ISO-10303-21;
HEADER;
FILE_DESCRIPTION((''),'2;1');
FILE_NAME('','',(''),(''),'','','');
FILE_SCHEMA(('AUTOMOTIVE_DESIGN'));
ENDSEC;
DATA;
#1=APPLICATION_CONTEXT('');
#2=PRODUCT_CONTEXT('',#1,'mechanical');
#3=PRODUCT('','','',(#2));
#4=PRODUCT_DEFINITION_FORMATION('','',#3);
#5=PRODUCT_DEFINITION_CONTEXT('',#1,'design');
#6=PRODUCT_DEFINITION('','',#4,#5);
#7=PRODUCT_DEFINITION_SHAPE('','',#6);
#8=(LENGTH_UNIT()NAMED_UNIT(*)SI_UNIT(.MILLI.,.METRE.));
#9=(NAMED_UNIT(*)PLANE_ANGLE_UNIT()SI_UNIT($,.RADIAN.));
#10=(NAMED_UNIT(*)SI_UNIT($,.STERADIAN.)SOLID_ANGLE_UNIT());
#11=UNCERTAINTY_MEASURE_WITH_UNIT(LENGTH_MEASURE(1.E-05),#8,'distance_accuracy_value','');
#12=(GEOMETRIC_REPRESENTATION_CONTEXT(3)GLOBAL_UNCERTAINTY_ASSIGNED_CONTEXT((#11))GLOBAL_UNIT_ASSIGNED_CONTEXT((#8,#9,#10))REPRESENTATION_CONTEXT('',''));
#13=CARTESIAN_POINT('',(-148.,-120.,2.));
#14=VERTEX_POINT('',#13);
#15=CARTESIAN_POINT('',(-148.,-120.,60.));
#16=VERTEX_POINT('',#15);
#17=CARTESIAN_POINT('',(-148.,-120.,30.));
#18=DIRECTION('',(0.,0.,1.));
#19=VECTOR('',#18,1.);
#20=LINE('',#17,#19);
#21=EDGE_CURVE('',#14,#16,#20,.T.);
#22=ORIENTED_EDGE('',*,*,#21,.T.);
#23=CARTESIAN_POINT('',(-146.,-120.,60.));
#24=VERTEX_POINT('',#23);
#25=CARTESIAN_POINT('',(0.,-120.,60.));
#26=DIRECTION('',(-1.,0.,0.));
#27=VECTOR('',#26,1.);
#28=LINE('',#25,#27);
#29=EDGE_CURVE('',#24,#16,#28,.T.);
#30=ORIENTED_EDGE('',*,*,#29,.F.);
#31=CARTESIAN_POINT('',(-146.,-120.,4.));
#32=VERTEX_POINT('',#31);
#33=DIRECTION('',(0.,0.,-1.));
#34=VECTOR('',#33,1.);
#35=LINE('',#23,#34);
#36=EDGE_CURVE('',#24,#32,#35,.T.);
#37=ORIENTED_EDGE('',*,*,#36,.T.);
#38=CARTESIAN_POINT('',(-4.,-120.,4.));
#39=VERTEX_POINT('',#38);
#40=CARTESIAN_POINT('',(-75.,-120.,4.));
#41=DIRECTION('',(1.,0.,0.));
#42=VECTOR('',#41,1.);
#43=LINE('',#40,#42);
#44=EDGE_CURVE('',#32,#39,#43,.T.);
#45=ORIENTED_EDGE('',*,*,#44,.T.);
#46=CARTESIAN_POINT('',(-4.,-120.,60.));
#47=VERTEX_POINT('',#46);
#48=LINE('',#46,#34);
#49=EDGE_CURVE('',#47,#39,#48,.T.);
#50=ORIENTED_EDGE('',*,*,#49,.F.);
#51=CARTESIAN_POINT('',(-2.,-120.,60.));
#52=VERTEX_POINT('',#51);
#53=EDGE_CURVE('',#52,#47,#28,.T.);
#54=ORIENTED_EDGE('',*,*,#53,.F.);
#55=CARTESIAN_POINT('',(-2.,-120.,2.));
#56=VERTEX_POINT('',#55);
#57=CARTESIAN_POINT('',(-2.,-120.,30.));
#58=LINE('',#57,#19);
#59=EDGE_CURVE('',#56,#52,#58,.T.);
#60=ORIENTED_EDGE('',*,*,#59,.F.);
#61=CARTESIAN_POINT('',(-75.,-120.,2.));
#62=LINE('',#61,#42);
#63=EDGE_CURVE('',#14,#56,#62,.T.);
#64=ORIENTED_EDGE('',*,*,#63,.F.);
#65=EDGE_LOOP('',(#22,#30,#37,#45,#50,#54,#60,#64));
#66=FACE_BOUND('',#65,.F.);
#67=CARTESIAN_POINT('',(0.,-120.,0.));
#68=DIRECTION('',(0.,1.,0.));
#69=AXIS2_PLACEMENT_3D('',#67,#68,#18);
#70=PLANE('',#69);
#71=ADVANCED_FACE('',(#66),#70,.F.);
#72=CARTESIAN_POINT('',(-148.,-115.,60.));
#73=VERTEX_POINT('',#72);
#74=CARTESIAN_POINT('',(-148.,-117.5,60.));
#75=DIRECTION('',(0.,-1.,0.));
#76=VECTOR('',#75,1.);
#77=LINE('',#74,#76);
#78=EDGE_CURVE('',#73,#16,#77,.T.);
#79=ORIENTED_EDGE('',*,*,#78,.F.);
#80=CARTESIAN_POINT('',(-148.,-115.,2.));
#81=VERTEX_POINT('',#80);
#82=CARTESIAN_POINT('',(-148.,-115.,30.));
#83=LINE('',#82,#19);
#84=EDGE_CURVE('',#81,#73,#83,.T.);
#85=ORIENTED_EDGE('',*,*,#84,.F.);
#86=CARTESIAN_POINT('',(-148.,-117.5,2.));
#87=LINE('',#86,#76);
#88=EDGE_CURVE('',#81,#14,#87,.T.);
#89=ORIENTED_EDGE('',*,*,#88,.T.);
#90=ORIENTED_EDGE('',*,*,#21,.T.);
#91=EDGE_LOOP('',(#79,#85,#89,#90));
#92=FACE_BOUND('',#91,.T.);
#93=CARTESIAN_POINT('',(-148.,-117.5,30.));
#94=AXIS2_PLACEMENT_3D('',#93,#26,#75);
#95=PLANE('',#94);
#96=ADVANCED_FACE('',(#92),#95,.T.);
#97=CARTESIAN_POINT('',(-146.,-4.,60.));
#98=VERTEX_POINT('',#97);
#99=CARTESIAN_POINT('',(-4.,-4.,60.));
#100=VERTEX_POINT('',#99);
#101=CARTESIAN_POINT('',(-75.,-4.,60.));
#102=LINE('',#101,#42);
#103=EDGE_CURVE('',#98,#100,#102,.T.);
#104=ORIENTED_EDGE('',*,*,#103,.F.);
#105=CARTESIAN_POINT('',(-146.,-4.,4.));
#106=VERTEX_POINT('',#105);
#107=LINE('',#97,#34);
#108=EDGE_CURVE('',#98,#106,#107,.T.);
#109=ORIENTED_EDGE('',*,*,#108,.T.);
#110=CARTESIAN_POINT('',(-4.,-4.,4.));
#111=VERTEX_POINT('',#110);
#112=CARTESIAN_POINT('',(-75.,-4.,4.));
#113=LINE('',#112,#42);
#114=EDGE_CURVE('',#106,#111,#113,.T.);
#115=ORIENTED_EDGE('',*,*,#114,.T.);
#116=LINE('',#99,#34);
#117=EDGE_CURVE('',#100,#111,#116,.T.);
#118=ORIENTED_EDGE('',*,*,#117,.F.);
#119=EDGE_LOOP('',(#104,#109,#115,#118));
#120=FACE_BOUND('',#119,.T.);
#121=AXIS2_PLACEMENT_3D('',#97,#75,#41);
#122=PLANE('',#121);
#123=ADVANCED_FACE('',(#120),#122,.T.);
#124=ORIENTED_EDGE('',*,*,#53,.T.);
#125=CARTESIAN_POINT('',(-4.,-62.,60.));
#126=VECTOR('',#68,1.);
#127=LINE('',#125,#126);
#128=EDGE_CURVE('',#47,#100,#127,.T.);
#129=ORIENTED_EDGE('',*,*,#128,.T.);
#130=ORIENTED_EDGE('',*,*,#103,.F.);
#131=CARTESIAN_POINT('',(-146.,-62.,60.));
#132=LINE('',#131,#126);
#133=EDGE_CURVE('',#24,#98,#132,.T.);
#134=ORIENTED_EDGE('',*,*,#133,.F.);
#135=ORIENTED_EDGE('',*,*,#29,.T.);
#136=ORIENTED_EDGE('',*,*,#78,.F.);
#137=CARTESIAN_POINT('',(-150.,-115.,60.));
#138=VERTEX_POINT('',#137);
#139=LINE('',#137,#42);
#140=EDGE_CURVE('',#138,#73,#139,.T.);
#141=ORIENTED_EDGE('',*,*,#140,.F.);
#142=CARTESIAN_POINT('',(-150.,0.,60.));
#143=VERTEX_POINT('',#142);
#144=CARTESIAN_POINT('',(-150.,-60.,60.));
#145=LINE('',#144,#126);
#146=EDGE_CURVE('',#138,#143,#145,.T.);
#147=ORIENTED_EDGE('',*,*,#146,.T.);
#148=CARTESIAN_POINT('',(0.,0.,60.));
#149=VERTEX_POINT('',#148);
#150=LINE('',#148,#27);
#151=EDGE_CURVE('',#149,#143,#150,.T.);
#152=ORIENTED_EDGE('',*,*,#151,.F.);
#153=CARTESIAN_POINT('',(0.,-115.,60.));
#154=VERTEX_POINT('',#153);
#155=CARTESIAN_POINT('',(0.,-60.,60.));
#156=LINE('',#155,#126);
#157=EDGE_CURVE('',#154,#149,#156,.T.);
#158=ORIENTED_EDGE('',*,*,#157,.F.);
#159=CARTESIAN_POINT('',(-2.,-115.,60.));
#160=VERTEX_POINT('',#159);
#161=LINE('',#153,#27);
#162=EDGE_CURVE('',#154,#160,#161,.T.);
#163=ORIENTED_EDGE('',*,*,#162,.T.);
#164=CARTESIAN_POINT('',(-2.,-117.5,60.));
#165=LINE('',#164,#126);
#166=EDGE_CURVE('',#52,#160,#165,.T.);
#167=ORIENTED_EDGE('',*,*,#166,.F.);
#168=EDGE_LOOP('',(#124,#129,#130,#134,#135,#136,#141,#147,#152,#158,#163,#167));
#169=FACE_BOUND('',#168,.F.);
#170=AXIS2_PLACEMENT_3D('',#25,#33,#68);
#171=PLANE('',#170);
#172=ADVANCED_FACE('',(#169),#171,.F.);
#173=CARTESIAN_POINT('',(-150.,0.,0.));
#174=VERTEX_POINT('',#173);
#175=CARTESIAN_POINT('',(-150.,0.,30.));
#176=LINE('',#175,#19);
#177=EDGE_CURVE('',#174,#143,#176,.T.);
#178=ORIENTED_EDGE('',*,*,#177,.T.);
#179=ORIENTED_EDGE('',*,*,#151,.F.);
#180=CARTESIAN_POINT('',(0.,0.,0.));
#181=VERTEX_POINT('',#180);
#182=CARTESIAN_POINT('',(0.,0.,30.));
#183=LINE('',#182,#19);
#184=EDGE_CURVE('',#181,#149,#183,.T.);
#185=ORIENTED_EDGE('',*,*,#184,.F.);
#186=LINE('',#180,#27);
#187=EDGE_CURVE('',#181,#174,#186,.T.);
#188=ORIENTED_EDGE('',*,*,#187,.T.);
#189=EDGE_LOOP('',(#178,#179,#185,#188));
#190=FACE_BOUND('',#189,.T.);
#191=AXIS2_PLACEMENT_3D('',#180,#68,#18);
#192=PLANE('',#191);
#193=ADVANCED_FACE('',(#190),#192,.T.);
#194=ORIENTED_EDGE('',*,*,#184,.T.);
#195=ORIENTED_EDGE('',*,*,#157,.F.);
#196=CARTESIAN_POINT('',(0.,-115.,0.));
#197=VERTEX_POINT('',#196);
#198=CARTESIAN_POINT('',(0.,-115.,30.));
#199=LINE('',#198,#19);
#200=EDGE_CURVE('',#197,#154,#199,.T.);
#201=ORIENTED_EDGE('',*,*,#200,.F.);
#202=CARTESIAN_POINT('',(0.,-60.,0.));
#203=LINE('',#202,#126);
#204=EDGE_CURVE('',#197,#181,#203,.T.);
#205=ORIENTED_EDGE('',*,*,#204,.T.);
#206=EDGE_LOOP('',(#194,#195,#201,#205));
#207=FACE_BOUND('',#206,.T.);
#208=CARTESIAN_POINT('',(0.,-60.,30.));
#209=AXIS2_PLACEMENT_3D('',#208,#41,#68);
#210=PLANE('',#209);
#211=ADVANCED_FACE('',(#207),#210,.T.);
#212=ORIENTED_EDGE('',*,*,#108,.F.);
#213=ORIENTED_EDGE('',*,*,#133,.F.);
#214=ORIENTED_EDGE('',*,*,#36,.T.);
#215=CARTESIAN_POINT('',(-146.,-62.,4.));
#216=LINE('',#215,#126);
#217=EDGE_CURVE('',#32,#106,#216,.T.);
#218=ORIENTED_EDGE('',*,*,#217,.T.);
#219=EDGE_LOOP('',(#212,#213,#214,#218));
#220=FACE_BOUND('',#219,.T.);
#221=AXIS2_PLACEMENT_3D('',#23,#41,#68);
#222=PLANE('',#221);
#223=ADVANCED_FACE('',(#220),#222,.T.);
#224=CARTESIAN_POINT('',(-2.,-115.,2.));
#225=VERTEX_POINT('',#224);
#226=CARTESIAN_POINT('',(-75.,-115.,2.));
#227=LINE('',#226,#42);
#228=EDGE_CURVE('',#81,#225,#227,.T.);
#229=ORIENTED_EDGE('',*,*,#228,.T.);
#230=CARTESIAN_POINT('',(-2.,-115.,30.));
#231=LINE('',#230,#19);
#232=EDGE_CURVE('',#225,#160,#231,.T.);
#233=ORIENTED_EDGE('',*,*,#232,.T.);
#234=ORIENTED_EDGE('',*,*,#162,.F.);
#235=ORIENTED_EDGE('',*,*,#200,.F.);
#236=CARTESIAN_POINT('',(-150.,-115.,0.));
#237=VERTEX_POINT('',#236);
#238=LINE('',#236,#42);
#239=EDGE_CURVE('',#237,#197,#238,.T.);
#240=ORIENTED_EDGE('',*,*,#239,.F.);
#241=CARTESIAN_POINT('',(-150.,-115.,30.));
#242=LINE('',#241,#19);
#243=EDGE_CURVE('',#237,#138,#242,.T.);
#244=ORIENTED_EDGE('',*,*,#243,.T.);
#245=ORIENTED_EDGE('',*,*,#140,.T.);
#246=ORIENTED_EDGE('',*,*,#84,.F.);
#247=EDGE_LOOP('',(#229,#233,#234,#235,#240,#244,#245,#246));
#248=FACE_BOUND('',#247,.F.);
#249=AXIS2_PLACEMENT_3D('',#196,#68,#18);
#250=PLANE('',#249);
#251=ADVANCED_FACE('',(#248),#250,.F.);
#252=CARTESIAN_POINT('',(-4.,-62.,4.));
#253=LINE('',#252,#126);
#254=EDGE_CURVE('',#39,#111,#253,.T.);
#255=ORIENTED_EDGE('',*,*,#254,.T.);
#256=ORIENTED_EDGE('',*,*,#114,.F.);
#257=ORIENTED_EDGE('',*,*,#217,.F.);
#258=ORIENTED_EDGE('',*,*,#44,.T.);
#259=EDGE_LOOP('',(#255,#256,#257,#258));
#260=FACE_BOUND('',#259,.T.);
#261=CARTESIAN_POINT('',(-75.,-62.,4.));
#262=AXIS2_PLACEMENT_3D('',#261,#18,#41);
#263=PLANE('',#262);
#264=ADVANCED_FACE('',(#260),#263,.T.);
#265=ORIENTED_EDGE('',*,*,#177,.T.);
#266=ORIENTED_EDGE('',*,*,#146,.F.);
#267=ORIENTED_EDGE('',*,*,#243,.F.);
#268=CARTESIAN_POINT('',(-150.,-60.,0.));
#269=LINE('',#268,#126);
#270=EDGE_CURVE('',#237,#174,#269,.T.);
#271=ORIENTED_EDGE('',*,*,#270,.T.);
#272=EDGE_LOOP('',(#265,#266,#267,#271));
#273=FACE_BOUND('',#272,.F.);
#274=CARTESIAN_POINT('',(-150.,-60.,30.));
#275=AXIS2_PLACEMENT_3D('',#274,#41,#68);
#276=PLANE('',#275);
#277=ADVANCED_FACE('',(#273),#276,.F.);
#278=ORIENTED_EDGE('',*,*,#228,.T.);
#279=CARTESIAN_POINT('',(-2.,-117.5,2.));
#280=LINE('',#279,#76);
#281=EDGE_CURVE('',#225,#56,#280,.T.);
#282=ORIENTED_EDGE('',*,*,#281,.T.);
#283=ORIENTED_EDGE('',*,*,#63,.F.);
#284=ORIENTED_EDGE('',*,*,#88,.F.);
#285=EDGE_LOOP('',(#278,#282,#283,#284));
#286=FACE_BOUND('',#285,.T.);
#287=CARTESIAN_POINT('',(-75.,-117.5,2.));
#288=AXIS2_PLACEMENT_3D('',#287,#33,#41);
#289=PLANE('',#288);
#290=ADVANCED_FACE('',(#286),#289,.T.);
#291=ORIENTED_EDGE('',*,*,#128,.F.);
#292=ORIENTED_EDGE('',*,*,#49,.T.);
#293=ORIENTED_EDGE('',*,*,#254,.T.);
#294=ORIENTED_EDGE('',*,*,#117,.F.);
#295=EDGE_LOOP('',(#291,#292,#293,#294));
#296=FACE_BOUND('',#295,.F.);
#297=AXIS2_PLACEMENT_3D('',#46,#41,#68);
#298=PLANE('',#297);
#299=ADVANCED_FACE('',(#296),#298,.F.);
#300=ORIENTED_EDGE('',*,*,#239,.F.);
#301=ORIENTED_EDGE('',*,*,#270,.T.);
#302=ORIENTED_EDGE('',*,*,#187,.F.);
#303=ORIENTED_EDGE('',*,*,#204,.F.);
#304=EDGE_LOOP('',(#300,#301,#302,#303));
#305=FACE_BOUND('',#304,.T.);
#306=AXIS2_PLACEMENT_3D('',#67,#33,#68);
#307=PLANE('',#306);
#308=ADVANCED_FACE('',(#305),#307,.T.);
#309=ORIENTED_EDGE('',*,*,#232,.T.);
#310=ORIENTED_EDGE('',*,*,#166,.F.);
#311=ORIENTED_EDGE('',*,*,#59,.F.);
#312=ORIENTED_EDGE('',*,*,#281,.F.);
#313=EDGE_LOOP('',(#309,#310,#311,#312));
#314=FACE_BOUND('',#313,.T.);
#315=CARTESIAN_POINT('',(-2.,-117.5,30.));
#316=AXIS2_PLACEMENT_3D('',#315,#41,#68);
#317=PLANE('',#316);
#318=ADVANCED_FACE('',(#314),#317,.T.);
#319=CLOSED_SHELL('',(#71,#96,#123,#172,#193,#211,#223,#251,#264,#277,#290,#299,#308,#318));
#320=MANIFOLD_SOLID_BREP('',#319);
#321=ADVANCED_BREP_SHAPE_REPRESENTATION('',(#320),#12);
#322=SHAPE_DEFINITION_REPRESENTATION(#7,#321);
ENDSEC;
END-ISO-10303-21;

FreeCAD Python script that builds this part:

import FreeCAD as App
import Part
import Sketcher

doc = App.newDocument("Part")
params = doc.addObject("Spreadsheet::Sheet", "Params")
for row, (alias, value) in enumerate([
    ("sketch1_width", "120 mm"),
    ("sketch1_height", "60 mm"),
    ("pad1_length", "150 mm"),
    ("sketch2_width", "142 mm"),
    ("sketch2_height", "116 mm"),
    ("pocket1_length", "56 mm"),
    ("sketch3_width", "5 mm"),
    ("sketch3_height", "60 mm"),
    ("pocket2_length", "2 mm"),
    ("sketch4_width", "5 mm"),
    ("sketch4_height", "60 mm"),
    ("pocket3_length", "2 mm"),
    ("sketch5_width", "146 mm"),
    ("sketch5_height", "5 mm"),
    ("pocket4_length", "2 mm"),
], start=1):
    params.set(f"A{row}", alias)
    params.set(f"B{row}", "=" + value)
    params.setAlias(f"B{row}", alias)

body = doc.addObject("PartDesign::Body", "Body")

sketch1 = doc.addObject("Sketcher::SketchObject", "Sketch")
body.addObject(sketch1)
sketch1.AttachmentSupport = (doc.YZ_Plane, [""])
sketch1.MapMode = "FlatFace"
sketch1.addGeometry(Part.LineSegment(App.Vector(-120, 60, 0), App.Vector(-120, 0, 0)), False)
sketch1.addGeometry(Part.LineSegment(App.Vector(-120, 0, 0), App.Vector(0, 0, 0)), False)
sketch1.addGeometry(Part.LineSegment(App.Vector(0, 0, 0), App.Vector(0, 60, 0)), False)
sketch1.addGeometry(Part.LineSegment(App.Vector(0, 60, 0), App.Vector(-120, 60, 0)), False)
sketch1.addConstraint(Sketcher.Constraint("Coincident", 0, 2, 1, 1))
sketch1.addConstraint(Sketcher.Constraint("Coincident", 1, 2, 2, 1))
sketch1.addConstraint(Sketcher.Constraint("Coincident", 2, 2, 3, 1))
sketch1.addConstraint(Sketcher.Constraint("Coincident", 3, 2, 0, 1))
sketch1.addConstraint(Sketcher.Constraint("Vertical", 0))
sketch1.addConstraint(Sketcher.Constraint("Horizontal", 1))
sketch1.addConstraint(Sketcher.Constraint("Vertical", 2))
sketch1.addConstraint(Sketcher.Constraint("Horizontal", 3))
sketch1.addConstraint(Sketcher.Constraint("Coincident", 1, 2, -1, 1))
sketch1.addConstraint(Sketcher.Constraint("DistanceX", 1, 1, 1, 2, 120.0))
sketch1.addConstraint(Sketcher.Constraint("DistanceY", 0, 2, 0, 1, 60.0))
sketch1.setExpression("Constraints[9]", "Params.sketch1_width")
sketch1.setExpression("Constraints[10]", "Params.sketch1_height")
pad1 = doc.addObject("PartDesign::Pad", "Pad")
body.addObject(pad1)
pad1.Profile = sketch1
pad1.setExpression("Length", "Params.pad1_length")
pad1.Reversed = True

sketch2 = doc.addObject("Sketcher::SketchObject", "Sketch001")
body.addObject(sketch2)
sketch2.AttachmentSupport = (doc.XY_Plane, [""])
sketch2.MapMode = "FlatFace"
sketch2.AttachmentOffset = App.Placement(App.Vector(0, 0, 60), App.Rotation())
sketch2.addGeometry(Part.LineSegment(App.Vector(-146, -4, 0), App.Vector(-146, -120, 0)), False)
sketch2.addGeometry(Part.LineSegment(App.Vector(-146, -120, 0), App.Vector(-4, -120, 0)), False)
sketch2.addGeometry(Part.LineSegment(App.Vector(-4, -120, 0), App.Vector(-4, -4, 0)), False)
sketch2.addGeometry(Part.LineSegment(App.Vector(-4, -4, 0), App.Vector(-146, -4, 0)), False)
sketch2.addConstraint(Sketcher.Constraint("Coincident", 0, 2, 1, 1))
sketch2.addConstraint(Sketcher.Constraint("Coincident", 1, 2, 2, 1))
sketch2.addConstraint(Sketcher.Constraint("Coincident", 2, 2, 3, 1))
sketch2.addConstraint(Sketcher.Constraint("Coincident", 3, 2, 0, 1))
sketch2.addConstraint(Sketcher.Constraint("Vertical", 0))
sketch2.addConstraint(Sketcher.Constraint("Horizontal", 1))
sketch2.addConstraint(Sketcher.Constraint("Vertical", 2))
sketch2.addConstraint(Sketcher.Constraint("Horizontal", 3))
sketch2.addConstraint(Sketcher.Constraint("DistanceX", 1, 1, 1, 2, 142.0))
sketch2.addConstraint(Sketcher.Constraint("DistanceY", 0, 2, 0, 1, 116.0))
sketch2.addConstraint(Sketcher.Constraint("DistanceX", 0, 2, -1, 1, 146.0))
sketch2.addConstraint(Sketcher.Constraint("DistanceY", 0, 2, -1, 1, 120.0))
sketch2.setExpression("Constraints[8]", "Params.sketch2_width")
sketch2.setExpression("Constraints[9]", "Params.sketch2_height")
pocket1 = doc.addObject("PartDesign::Pocket", "Pocket")
body.addObject(pocket1)
pocket1.Profile = sketch2
pocket1.setExpression("Length", "Params.pocket1_length")

sketch3 = doc.addObject("Sketcher::SketchObject", "Sketch002")
body.addObject(sketch3)
sketch3.AttachmentSupport = (doc.YZ_Plane, [""])
sketch3.MapMode = "FlatFace"
sketch3.AttachmentOffset = App.Placement(App.Vector(0, 0, -150), App.Rotation())
sketch3.addGeometry(Part.LineSegment(App.Vector(-115, 60, 0), App.Vector(-115, 0, 0)), False)
sketch3.addGeometry(Part.LineSegment(App.Vector(-115, 0, 0), App.Vector(-120, 0, 0)), False)
sketch3.addGeometry(Part.LineSegment(App.Vector(-120, 0, 0), App.Vector(-120, 60, 0)), False)
sketch3.addGeometry(Part.LineSegment(App.Vector(-120, 60, 0), App.Vector(-115, 60, 0)), False)
sketch3.addConstraint(Sketcher.Constraint("Coincident", 0, 2, 1, 1))
sketch3.addConstraint(Sketcher.Constraint("Coincident", 1, 2, 2, 1))
sketch3.addConstraint(Sketcher.Constraint("Coincident", 2, 2, 3, 1))
sketch3.addConstraint(Sketcher.Constraint("Coincident", 3, 2, 0, 1))
sketch3.addConstraint(Sketcher.Constraint("Vertical", 0))
sketch3.addConstraint(Sketcher.Constraint("Horizontal", 1))
sketch3.addConstraint(Sketcher.Constraint("Vertical", 2))
sketch3.addConstraint(Sketcher.Constraint("Horizontal", 3))
sketch3.addConstraint(Sketcher.Constraint("PointOnObject", 0, 2, -1))
sketch3.addConstraint(Sketcher.Constraint("DistanceX", 1, 2, 1, 1, 5.0))
sketch3.addConstraint(Sketcher.Constraint("DistanceY", 0, 2, 0, 1, 60.0))
sketch3.addConstraint(Sketcher.Constraint("DistanceX", 0, 2, -1, 1, 115.0))
sketch3.setExpression("Constraints[9]", "Params.sketch3_width")
sketch3.setExpression("Constraints[10]", "Params.sketch3_height")
pocket2 = doc.addObject("PartDesign::Pocket", "Pocket001")
body.addObject(pocket2)
pocket2.Profile = sketch3
pocket2.setExpression("Length", "Params.pocket2_length")
pocket2.Reversed = True

sketch4 = doc.addObject("Sketcher::SketchObject", "Sketch003")
body.addObject(sketch4)
sketch4.AttachmentSupport = (doc.YZ_Plane, [""])
sketch4.MapMode = "FlatFace"
sketch4.addGeometry(Part.LineSegment(App.Vector(-120, 60, 0), App.Vector(-120, 0, 0)), False)
sketch4.addGeometry(Part.LineSegment(App.Vector(-120, 0, 0), App.Vector(-115, 0, 0)), False)
sketch4.addGeometry(Part.LineSegment(App.Vector(-115, 0, 0), App.Vector(-115, 60, 0)), False)
sketch4.addGeometry(Part.LineSegment(App.Vector(-115, 60, 0), App.Vector(-120, 60, 0)), False)
sketch4.addConstraint(Sketcher.Constraint("Coincident", 0, 2, 1, 1))
sketch4.addConstraint(Sketcher.Constraint("Coincident", 1, 2, 2, 1))
sketch4.addConstraint(Sketcher.Constraint("Coincident", 2, 2, 3, 1))
sketch4.addConstraint(Sketcher.Constraint("Coincident", 3, 2, 0, 1))
sketch4.addConstraint(Sketcher.Constraint("Vertical", 0))
sketch4.addConstraint(Sketcher.Constraint("Horizontal", 1))
sketch4.addConstraint(Sketcher.Constraint("Vertical", 2))
sketch4.addConstraint(Sketcher.Constraint("Horizontal", 3))
sketch4.addConstraint(Sketcher.Constraint("PointOnObject", 0, 2, -1))
sketch4.addConstraint(Sketcher.Constraint("DistanceX", 1, 1, 1, 2, 5.0))
sketch4.addConstraint(Sketcher.Constraint("DistanceY", 0, 2, 0, 1, 60.0))
sketch4.addConstraint(Sketcher.Constraint("DistanceX", 0, 2, -1, 1, 120.0))
sketch4.setExpression("Constraints[9]", "Params.sketch4_width")
sketch4.setExpression("Constraints[10]", "Params.sketch4_height")
pocket3 = doc.addObject("PartDesign::Pocket", "Pocket002")
body.addObject(pocket3)
pocket3.Profile = sketch4
pocket3.setExpression("Length", "Params.pocket3_length")

sketch5 = doc.addObject("Sketcher::SketchObject", "Sketch004")
body.addObject(sketch5)
sketch5.AttachmentSupport = (doc.XY_Plane, [""])
sketch5.MapMode = "FlatFace"
sketch5.addGeometry(Part.LineSegment(App.Vector(-148, -120, 0), App.Vector(-148, -115, 0)), False)
sketch5.addGeometry(Part.LineSegment(App.Vector(-148, -115, 0), App.Vector(-2, -115, 0)), False)
sketch5.addGeometry(Part.LineSegment(App.Vector(-2, -115, 0), App.Vector(-2, -120, 0)), False)
sketch5.addGeometry(Part.LineSegment(App.Vector(-2, -120, 0), App.Vector(-148, -120, 0)), False)
sketch5.addConstraint(Sketcher.Constraint("Coincident", 0, 2, 1, 1))
sketch5.addConstraint(Sketcher.Constraint("Coincident", 1, 2, 2, 1))
sketch5.addConstraint(Sketcher.Constraint("Coincident", 2, 2, 3, 1))
sketch5.addConstraint(Sketcher.Constraint("Coincident", 3, 2, 0, 1))
sketch5.addConstraint(Sketcher.Constraint("Vertical", 0))
sketch5.addConstraint(Sketcher.Constraint("Horizontal", 1))
sketch5.addConstraint(Sketcher.Constraint("Vertical", 2))
sketch5.addConstraint(Sketcher.Constraint("Horizontal", 3))
sketch5.addConstraint(Sketcher.Constraint("DistanceX", 1, 1, 1, 2, 146.0))
sketch5.addConstraint(Sketcher.Constraint("DistanceY", 0, 1, 0, 2, 5.0))
sketch5.addConstraint(Sketcher.Constraint("DistanceX", 0, 2, -1, 1, 148.0))
sketch5.addConstraint(Sketcher.Constraint("DistanceY", 0, 2, -1, 1, 115.0))
sketch5.setExpression("Constraints[8]", "Params.sketch5_width")
sketch5.setExpression("Constraints[9]", "Params.sketch5_height")
pocket4 = doc.addObject("PartDesign::Pocket", "Pocket003")
body.addObject(pocket4)
pocket4.Profile = sketch5
pocket4.setExpression("Length", "Params.pocket4_length")
pocket4.Reversed = True

doc.recompute()
